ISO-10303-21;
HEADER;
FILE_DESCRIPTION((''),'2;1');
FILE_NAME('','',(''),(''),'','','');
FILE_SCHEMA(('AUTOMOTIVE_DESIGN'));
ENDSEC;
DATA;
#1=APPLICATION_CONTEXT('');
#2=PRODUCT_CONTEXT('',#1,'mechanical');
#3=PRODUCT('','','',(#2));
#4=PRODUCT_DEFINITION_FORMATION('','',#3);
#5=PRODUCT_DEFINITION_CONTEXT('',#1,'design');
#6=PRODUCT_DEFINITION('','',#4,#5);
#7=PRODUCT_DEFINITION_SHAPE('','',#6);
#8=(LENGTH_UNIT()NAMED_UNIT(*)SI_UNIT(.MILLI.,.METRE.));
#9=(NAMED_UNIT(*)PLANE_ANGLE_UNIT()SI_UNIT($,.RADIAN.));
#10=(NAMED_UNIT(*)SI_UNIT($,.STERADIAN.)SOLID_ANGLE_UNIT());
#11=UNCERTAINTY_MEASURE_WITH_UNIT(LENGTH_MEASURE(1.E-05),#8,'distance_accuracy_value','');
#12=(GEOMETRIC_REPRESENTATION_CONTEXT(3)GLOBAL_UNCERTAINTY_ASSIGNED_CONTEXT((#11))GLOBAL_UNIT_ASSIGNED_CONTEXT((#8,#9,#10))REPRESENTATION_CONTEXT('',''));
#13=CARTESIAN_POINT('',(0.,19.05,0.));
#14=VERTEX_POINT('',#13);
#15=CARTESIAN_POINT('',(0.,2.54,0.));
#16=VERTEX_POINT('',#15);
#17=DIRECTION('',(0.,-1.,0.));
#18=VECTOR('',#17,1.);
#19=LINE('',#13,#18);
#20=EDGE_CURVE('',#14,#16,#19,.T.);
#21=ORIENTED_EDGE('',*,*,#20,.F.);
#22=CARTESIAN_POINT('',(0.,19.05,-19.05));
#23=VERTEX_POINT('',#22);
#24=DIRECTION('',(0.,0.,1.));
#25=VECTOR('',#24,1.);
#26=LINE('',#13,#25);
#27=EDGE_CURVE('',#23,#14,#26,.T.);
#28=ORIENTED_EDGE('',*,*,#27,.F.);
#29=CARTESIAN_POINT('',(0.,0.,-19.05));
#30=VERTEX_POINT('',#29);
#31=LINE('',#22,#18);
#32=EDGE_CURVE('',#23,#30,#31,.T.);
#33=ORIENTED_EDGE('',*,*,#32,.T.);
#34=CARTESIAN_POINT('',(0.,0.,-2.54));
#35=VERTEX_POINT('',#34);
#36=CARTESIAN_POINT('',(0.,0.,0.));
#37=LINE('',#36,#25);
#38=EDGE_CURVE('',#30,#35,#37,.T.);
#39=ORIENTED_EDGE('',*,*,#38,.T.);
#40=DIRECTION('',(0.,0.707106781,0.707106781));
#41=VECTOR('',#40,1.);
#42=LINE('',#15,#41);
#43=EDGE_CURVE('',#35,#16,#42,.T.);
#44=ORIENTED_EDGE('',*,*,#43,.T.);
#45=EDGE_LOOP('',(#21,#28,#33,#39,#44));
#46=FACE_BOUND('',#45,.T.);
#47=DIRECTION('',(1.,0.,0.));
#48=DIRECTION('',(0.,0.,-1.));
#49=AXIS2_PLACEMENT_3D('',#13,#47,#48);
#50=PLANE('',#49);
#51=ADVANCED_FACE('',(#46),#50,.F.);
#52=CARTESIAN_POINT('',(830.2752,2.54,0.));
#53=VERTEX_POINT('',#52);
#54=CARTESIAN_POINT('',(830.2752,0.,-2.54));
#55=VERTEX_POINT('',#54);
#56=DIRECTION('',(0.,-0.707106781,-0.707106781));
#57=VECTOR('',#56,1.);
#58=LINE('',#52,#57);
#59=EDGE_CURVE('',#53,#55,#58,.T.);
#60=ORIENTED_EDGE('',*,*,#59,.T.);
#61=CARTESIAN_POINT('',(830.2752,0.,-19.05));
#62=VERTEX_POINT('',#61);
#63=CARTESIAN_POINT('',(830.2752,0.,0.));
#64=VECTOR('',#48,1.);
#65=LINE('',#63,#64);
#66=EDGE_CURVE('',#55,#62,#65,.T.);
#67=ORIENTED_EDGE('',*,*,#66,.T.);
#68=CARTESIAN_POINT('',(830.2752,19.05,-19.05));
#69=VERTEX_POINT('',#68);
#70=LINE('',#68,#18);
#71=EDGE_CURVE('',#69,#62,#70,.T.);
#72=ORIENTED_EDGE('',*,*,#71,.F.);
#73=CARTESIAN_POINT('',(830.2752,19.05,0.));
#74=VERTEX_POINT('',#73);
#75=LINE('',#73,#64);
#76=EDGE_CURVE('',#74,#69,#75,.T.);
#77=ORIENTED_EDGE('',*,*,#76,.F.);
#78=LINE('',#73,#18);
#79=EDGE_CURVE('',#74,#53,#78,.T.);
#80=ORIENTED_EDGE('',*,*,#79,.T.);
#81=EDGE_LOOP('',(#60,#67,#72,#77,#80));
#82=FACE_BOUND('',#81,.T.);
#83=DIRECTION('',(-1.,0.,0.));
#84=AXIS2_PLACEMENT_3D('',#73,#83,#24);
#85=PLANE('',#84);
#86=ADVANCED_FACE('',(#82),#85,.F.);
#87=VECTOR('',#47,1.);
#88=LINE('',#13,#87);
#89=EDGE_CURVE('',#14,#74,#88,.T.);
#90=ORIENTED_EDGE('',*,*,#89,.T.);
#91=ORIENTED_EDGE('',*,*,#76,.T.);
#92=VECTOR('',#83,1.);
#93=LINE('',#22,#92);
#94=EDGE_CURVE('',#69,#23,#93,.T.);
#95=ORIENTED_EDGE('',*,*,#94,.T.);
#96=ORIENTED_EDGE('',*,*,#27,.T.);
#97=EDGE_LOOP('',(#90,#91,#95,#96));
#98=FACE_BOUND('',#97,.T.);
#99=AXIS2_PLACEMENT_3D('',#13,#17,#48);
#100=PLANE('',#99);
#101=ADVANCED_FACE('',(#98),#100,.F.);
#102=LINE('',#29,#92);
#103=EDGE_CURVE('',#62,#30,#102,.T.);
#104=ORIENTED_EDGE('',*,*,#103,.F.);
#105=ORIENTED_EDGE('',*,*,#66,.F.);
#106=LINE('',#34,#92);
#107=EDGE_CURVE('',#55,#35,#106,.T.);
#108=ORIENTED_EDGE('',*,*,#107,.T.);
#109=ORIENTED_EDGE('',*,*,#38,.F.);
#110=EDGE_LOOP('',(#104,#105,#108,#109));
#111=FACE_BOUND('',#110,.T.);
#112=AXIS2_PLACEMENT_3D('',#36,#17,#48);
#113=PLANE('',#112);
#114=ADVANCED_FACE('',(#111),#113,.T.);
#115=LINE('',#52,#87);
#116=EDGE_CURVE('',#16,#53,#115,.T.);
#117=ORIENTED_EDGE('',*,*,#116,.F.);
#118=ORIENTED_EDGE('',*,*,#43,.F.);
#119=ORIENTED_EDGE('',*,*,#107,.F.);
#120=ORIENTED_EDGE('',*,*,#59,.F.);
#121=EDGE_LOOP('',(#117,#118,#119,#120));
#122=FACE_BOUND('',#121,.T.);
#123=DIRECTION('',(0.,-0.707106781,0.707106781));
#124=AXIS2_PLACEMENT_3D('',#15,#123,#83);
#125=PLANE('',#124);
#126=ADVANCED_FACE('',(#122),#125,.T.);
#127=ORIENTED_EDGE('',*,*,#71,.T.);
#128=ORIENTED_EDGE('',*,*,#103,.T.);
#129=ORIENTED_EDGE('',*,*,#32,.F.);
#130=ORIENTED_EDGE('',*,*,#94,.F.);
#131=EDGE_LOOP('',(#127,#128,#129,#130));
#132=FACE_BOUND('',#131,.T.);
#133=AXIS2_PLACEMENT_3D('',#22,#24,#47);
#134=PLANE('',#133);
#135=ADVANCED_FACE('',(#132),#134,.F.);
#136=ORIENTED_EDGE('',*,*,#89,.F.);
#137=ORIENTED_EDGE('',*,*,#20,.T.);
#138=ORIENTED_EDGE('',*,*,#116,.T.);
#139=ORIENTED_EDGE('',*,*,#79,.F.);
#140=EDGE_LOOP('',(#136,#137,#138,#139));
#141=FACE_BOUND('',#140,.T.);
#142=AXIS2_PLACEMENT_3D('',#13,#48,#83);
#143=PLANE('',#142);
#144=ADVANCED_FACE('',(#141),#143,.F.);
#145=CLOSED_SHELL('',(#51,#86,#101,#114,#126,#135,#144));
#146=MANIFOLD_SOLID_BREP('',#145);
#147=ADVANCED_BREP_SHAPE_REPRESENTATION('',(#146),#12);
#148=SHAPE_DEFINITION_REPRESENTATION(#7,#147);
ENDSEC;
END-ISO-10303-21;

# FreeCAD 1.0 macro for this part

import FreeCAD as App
import Part
import Sketcher
Q = App.Units.Quantity


def edges_at(feature, points):
    """Names of the edges that pass closest to the given points."""
    edges = feature.Shape.Edges
    near = lambda p: min(range(len(edges)), key=lambda i: edges[i].distToShape(Part.Vertex(*p))[0])
    return sorted({f"Edge{near(p) + 1}" for p in points})


def add_polygon(sketch, points):
    """Adds a closed chain of lines whose ends are joined by coincident constraints."""
    first, n = sketch.GeometryCount, len(points)
    for a, b in zip(points, points[1:] + points[:1]):
        sketch.addGeometry(Part.LineSegment(App.Vector(*a, 0), App.Vector(*b, 0)), False)
    for i in range(n):
        sketch.addConstraint(Sketcher.Constraint("Coincident", first + i, 2, first + (i + 1) % n, 1))

doc = App.newDocument("Part")
body = doc.addObject("PartDesign::Body", "Body")

# Sketch on XZ plane
sketch1 = body.newObject("Sketcher::SketchObject", "Sketch")
sketch1.AttachmentSupport = (doc.getObject("XZ_Plane"), [""])
sketch1.MapMode = "FlatFace"
add_polygon(sketch1, [(0, -19), (0, 0), (830, 0), (830, -19)])  # lines 0-3
sketch1.addConstraint([
    Sketcher.Constraint("Vertical", 0),
    Sketcher.Constraint("Horizontal", 1),
    Sketcher.Constraint("Vertical", 2),
    Sketcher.Constraint("Horizontal", 3),
    Sketcher.Constraint("Coincident", 0, 2, -1, 1),
    Sketcher.Constraint("DistanceY", 0, 1, 0, 2, Q("0.75 in")),
    Sketcher.Constraint("DistanceX", 1, 1, 1, 2, Q("32.688 in")),
])
pad1 = body.newObject("PartDesign::Pad", "Pad")
pad1.Profile = sketch1
pad1.Length = Q("0.75 in")
pad1.Reversed = True
doc.recompute()

chamfer = body.newObject("PartDesign::Chamfer", "Chamfer")
chamfer.Base = (pad1, edges_at(pad1, [(415.138, 0, 0)]))
chamfer.Size = Q("0.1 in")

doc.recompute()
